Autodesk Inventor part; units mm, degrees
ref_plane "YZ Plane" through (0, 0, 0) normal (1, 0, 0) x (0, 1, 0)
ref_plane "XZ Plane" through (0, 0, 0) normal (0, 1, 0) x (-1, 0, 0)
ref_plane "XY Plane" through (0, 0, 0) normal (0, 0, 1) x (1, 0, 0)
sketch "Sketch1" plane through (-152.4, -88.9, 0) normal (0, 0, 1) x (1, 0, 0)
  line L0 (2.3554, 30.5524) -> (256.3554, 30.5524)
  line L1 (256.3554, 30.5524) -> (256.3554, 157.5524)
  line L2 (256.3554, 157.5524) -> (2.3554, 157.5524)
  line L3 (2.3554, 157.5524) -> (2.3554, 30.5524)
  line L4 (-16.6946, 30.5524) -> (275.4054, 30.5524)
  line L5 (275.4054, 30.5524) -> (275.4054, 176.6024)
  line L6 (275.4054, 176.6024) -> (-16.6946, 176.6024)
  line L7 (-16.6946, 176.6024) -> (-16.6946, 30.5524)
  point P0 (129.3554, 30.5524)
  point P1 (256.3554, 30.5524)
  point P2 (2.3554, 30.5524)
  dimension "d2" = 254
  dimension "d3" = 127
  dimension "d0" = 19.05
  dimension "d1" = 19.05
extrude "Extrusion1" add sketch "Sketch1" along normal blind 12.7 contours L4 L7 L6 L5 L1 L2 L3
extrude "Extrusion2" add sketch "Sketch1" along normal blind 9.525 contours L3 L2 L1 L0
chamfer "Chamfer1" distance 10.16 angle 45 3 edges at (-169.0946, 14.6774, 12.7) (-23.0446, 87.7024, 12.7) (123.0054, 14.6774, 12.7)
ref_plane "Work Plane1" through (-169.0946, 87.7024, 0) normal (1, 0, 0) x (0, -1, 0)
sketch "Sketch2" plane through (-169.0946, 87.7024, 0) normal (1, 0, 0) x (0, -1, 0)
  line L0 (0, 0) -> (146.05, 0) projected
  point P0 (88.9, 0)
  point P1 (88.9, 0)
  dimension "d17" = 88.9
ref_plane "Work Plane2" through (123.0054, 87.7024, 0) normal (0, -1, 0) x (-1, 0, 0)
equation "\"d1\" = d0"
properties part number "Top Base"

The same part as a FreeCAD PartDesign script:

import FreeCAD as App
import Part
import Sketcher
Q = App.Units.Quantity


def edges_at(feature, points):
    """Names of the edges that pass closest to the given points."""
    edges = feature.Shape.Edges
    near = lambda p: min(range(len(edges)), key=lambda i: edges[i].distToShape(Part.Vertex(*p))[0])
    return sorted({f"Edge{near(p) + 1}" for p in points})

doc = App.newDocument("Part")
params = doc.addObject("Spreadsheet::Sheet", "Params")
for row, (alias, value) in enumerate([
    ("sketch1_width", "10 in"),
    ("sketch1_height", "5 in"),
    ("sketch1_width2", "0.75 in"),
    ("pad1_length", "0.5 in"),
    ("sketch2_width", "10 in"),
    ("sketch2_height", "5 in"),
    ("pad2_length", "0.375 in"),
    ("chamfer_size", "0.4 in"),
], start=1):
    params.set(f"A{row}", alias)
    params.set(f"B{row}", "=" + value)
    params.setAlias(f"B{row}", alias)

body = doc.addObject("PartDesign::Body", "Body")

# Sketch on XY plane
sketch1 = body.newObject("Sketcher::SketchObject", "Sketch")
sketch1.AttachmentSupport = (doc.getObject("XY_Plane"), [""])
sketch1.MapMode = "FlatFace"
sketch1.addGeometry([
    Part.LineSegment(App.Vector(-169, -58, 0), App.Vector(-150, -58, 0)),  # 0
    Part.LineSegment(App.Vector(-150, -58, 0), App.Vector(-150, 69, 0)),  # 1
    Part.LineSegment(App.Vector(-150, 69, 0), App.Vector(104, 69, 0)),  # 2
    Part.LineSegment(App.Vector(104, 69, 0), App.Vector(104, -58, 0)),  # 3
    Part.LineSegment(App.Vector(104, -58, 0), App.Vector(123, -58, 0)),  # 4
    Part.LineSegment(App.Vector(123, -58, 0), App.Vector(123, 88, 0)),  # 5
    Part.LineSegment(App.Vector(123, 88, 0), App.Vector(-169, 88, 0)),  # 6
    Part.LineSegment(App.Vector(-169, 88, 0), App.Vector(-169, -58, 0)),  # 7
], False)
sketch1.addConstraint([
    Sketcher.Constraint("Coincident", 0, 2, 1, 1),
    Sketcher.Constraint("Coincident", 1, 2, 2, 1),
    Sketcher.Constraint("Coincident", 2, 2, 3, 1),
    Sketcher.Constraint("Coincident", 3, 2, 4, 1),
    Sketcher.Constraint("Coincident", 4, 2, 5, 1),
    Sketcher.Constraint("Coincident", 5, 2, 6, 1),
    Sketcher.Constraint("Coincident", 6, 2, 7, 1),
    Sketcher.Constraint("Coincident", 7, 2, 0, 1),
    Sketcher.Constraint("Horizontal", 0),
    Sketcher.Constraint("Vertical", 1),
    Sketcher.Constraint("Horizontal", 2),
    Sketcher.Constraint("Vertical", 3),
    Sketcher.Constraint("Horizontal", 4),
    Sketcher.Constraint("Vertical", 5),
    Sketcher.Constraint("Horizontal", 6),
    Sketcher.Constraint("Vertical", 7),
    Sketcher.Constraint("Horizontal", 0, 2, 3, 2),
    Sketcher.Constraint("Equal", 0, 4),
    Sketcher.Constraint("DistanceX", 2, 1, 2, 2, Q("10 in")),
    Sketcher.Constraint("DistanceY", 1, 1, 1, 2, Q("5 in")),
    Sketcher.Constraint("DistanceX", 0, 1, 0, 2, Q("0.75 in")),
    Sketcher.Constraint("DistanceY", 2, 2, 5, 2, Q("0.75 in")),
    Sketcher.Constraint("DistanceX", 0, 2, -1, 1, Q("150.0446 mm")),
    Sketcher.Constraint("DistanceY", 0, 2, -1, 1, Q("58.3476 mm")),
])
sketch1.setExpression("Constraints[18]", "Params.sketch1_width")
sketch1.setExpression("Constraints[19]", "Params.sketch1_height")
sketch1.setExpression("Constraints[20]", "Params.sketch1_width2")
pad1 = body.newObject("PartDesign::Pad", "Pad")
pad1.Profile = sketch1
pad1.setExpression("Length", "Params.pad1_length")

# Sketch on XY plane
sketch2 = body.newObject("Sketcher::SketchObject", "Sketch001")
sketch2.AttachmentSupport = (doc.getObject("XY_Plane"), [""])
sketch2.MapMode = "FlatFace"
sketch2.addGeometry([
    Part.LineSegment(App.Vector(-150, 69, 0), App.Vector(-150, -58, 0)),
    Part.LineSegment(App.Vector(-150, -58, 0), App.Vector(104, -58, 0)),
    Part.LineSegment(App.Vector(104, -58, 0), App.Vector(104, 69, 0)),
    Part.LineSegment(App.Vector(104, 69, 0), App.Vector(-150, 69, 0)),
], False)
sketch2.addConstraint([
    Sketcher.Constraint("Coincident", 0, 2, 1, 1),
    Sketcher.Constraint("Coincident", 1, 2, 2, 1),
    Sketcher.Constraint("Coincident", 2, 2, 3, 1),
    Sketcher.Constraint("Coincident", 3, 2, 0, 1),
    Sketcher.Constraint("Vertical", 0),
    Sketcher.Constraint("Horizontal", 1),
    Sketcher.Constraint("Vertical", 2),
    Sketcher.Constraint("Horizontal", 3),
    Sketcher.Constraint("DistanceX", 1, 1, 1, 2, Q("10 in")),
    Sketcher.Constraint("DistanceY", 0, 2, 0, 1, Q("5 in")),
    Sketcher.Constraint("DistanceX", 0, 2, -1, 1, Q("150.0446 mm")),
    Sketcher.Constraint("DistanceY", 0, 2, -1, 1, Q("58.3476 mm")),
])
sketch2.setExpression("Constraints[8]", "Params.sketch2_width")
sketch2.setExpression("Constraints[9]", "Params.sketch2_height")
pad2 = body.newObject("PartDesign::Pad", "Pad001")
pad2.Profile = sketch2
pad2.setExpression("Length", "Params.pad2_length")
doc.recompute()

chamfer = body.newObject("PartDesign::Chamfer", "Chamfer")
chamfer.Base = (pad2, edges_at(pad2, [(-169.095, 14.677, 12.7), (-23.045, 87.702, 12.7), (123.005, 14.677, 12.7)]))
chamfer.setExpression("Size", "Params.chamfer_size")

doc.recompute()
